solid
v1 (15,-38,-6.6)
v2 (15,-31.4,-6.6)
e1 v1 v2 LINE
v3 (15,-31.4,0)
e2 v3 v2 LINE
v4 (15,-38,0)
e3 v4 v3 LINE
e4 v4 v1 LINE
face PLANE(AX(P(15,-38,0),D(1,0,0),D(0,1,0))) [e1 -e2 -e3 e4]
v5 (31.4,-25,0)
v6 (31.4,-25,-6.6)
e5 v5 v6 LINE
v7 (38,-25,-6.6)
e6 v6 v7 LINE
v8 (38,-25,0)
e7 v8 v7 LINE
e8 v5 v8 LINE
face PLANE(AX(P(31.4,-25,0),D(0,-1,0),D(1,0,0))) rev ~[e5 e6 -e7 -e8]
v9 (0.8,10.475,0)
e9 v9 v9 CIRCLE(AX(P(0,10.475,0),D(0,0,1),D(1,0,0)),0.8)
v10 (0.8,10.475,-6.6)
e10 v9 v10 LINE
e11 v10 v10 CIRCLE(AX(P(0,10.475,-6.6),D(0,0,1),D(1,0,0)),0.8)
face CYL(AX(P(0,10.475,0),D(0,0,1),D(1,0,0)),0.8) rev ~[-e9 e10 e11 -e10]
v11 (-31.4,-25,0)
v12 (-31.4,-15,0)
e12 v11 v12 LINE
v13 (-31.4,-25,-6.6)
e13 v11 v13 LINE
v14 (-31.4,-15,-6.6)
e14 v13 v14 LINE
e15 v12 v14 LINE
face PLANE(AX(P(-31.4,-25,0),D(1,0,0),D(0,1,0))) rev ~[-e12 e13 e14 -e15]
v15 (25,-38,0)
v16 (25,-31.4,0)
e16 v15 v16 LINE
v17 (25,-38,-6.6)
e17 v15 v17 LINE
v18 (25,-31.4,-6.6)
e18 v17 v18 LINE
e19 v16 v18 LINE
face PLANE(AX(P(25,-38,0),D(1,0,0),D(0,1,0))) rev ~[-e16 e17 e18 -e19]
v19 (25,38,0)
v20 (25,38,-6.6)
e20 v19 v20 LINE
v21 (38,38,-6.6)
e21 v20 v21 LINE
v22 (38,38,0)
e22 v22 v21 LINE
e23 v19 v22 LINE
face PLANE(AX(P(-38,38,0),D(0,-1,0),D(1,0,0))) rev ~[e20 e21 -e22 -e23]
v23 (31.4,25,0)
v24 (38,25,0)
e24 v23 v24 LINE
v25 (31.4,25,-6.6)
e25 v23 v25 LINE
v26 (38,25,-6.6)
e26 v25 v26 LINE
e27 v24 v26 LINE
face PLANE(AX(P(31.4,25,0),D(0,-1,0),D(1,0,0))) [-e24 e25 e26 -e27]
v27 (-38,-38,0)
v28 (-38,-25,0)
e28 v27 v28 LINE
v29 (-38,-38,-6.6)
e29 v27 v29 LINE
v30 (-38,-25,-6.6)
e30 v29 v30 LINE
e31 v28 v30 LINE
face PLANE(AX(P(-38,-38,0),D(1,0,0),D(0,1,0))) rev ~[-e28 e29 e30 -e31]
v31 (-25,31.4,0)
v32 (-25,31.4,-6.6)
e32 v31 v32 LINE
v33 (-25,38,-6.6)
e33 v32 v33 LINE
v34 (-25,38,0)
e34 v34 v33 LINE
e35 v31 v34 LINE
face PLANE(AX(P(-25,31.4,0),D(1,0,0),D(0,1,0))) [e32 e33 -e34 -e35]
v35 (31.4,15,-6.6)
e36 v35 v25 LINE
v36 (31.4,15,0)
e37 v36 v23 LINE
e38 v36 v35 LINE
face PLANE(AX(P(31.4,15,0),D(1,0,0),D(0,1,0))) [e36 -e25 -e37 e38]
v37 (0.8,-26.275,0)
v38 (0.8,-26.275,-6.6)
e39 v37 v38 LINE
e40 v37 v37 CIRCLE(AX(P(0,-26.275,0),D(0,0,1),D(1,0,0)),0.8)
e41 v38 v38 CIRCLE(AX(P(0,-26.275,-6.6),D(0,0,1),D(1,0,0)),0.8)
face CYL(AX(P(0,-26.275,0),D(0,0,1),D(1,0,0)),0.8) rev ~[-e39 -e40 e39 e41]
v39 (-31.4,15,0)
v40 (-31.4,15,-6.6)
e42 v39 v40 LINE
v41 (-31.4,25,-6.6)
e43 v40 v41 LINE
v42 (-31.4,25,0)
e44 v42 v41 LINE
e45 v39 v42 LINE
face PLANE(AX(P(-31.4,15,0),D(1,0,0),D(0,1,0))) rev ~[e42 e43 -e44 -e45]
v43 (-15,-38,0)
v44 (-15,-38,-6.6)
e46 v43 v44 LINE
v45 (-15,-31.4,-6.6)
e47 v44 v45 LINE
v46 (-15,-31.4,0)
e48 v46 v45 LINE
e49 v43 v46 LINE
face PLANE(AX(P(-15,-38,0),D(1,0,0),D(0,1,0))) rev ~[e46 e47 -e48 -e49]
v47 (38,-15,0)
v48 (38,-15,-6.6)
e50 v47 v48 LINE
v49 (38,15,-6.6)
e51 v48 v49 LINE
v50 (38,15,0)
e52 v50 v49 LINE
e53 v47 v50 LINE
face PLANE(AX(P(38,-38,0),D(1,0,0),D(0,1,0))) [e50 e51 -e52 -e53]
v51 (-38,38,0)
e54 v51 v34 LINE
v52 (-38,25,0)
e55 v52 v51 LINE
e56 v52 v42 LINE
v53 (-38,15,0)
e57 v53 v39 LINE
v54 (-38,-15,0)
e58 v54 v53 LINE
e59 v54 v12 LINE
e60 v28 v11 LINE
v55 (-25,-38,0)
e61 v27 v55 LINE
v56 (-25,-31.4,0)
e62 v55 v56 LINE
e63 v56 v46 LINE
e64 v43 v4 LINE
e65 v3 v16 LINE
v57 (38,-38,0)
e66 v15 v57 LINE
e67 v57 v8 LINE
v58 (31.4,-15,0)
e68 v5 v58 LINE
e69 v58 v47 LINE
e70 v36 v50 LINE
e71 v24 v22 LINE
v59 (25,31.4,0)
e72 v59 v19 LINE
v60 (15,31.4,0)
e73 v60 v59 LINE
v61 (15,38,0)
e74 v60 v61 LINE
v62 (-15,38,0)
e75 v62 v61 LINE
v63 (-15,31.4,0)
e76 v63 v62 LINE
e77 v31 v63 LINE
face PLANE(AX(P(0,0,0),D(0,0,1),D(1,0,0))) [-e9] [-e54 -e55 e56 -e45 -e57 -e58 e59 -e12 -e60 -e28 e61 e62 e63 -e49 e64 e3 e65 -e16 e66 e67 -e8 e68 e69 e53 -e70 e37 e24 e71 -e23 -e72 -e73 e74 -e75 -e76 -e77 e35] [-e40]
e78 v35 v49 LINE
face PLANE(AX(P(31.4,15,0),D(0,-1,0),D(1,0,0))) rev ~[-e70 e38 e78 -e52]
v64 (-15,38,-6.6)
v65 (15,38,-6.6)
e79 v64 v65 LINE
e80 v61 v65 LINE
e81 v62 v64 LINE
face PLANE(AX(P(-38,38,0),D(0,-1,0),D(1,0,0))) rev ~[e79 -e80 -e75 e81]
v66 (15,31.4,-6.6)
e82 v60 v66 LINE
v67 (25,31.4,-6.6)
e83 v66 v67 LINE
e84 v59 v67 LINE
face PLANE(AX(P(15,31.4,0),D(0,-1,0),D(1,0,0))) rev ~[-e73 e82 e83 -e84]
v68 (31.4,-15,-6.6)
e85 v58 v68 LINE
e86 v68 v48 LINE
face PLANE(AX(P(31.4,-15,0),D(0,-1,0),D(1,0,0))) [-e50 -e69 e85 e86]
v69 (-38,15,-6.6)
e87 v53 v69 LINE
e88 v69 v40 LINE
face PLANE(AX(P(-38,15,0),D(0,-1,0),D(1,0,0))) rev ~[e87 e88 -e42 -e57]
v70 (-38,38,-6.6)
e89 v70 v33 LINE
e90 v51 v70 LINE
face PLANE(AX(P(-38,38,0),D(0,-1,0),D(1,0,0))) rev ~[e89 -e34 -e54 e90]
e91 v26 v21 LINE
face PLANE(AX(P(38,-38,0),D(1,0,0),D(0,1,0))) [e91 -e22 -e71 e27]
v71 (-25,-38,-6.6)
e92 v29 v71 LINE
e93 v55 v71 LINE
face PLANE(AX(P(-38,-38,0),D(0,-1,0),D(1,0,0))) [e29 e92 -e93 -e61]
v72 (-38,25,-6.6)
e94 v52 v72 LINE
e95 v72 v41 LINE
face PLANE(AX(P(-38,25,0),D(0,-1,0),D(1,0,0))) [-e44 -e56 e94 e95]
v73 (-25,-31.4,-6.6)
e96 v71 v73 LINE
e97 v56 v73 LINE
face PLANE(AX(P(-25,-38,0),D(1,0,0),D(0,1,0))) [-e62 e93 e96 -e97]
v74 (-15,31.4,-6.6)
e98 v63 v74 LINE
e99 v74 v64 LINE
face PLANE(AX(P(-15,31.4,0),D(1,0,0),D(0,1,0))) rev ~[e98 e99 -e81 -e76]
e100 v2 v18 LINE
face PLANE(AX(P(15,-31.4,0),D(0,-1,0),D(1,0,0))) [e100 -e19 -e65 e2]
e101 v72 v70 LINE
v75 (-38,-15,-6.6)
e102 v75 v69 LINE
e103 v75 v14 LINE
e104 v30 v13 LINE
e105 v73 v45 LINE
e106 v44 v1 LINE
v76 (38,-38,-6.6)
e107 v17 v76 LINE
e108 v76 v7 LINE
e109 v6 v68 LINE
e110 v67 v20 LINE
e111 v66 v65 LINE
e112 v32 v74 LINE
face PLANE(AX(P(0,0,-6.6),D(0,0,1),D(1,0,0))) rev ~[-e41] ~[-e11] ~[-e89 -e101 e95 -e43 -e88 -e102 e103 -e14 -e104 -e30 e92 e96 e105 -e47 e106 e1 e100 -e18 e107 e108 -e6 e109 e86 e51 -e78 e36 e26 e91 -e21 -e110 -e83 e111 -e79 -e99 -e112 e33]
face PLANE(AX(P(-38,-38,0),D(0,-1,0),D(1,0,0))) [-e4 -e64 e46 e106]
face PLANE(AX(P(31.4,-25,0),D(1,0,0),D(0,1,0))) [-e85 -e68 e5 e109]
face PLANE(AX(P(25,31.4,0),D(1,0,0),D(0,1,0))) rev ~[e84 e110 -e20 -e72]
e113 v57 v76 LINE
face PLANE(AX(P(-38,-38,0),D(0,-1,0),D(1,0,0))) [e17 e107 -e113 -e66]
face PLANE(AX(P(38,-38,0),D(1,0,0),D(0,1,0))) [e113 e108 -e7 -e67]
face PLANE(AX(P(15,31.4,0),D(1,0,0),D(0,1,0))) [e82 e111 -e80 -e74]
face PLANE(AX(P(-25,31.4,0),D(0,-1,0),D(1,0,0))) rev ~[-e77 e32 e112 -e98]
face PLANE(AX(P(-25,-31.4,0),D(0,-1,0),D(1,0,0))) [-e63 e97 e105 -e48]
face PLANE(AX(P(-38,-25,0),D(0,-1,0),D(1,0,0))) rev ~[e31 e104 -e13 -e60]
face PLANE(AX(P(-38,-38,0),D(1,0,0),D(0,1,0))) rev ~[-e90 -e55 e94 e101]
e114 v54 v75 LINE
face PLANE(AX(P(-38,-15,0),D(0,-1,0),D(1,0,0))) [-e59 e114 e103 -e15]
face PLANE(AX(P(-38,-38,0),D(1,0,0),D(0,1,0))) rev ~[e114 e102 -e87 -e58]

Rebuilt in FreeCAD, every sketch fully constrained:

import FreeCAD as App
import Part
import Sketcher
from FreeCAD import Vector
Q = App.Units.Quantity

doc = App.newDocument("Part")
body = doc.addObject("PartDesign::Body", "Body")

# Sketch on XY plane
sketch1 = body.newObject("Sketcher::SketchObject", "Sketch")
sketch1.AttachmentSupport = (doc.getObject("XY_Plane"), [""])
sketch1.MapMode = "FlatFace"
sketch1.addGeometry(Part.LineSegment(Vector(-38, 38, 0), Vector(-38, -38, 0)), False)
sketch1.addGeometry(Part.LineSegment(Vector(-38, -38, 0), Vector(38, -38, 0)), False)
sketch1.addGeometry(Part.LineSegment(Vector(38, -38, 0), Vector(38, 38, 0)), False)
sketch1.addGeometry(Part.LineSegment(Vector(38, 38, 0), Vector(-38, 38, 0)), False)
sketch1.addConstraint(Sketcher.Constraint("Coincident", 0, 2, 1, 1))
sketch1.addConstraint(Sketcher.Constraint("Coincident", 1, 2, 2, 1))
sketch1.addConstraint(Sketcher.Constraint("Coincident", 2, 2, 3, 1))
sketch1.addConstraint(Sketcher.Constraint("Coincident", 3, 2, 0, 1))
sketch1.addConstraint(Sketcher.Constraint("Vertical", 0))
sketch1.addConstraint(Sketcher.Constraint("Horizontal", 1))
sketch1.addConstraint(Sketcher.Constraint("Vertical", 2))
sketch1.addConstraint(Sketcher.Constraint("Horizontal", 3))
sketch1.addConstraint(Sketcher.Constraint("Symmetric", 0, 2, 2, 2, -1, 1))
sketch1.addConstraint(Sketcher.Constraint("Equal", 3, 0))
sketch1.addConstraint(Sketcher.Constraint("DistanceX", 1, 1, 1, 2, Q("76 mm")))
pad1 = body.newObject("PartDesign::Pad", "Pad")
pad1.Profile = sketch1
pad1.Length = 6.6
pad1.Reversed = True

# Sketch on XY plane
sketch2 = body.newObject("Sketcher::SketchObject", "Sketch001")
sketch2.AttachmentSupport = (doc.getObject("XY_Plane"), [""])
sketch2.MapMode = "FlatFace"
sketch2.addGeometry(Part.LineSegment(Vector(15, 38, 0), Vector(15, 31, 0)), False)
sketch2.addGeometry(Part.LineSegment(Vector(15, 31, 0), Vector(25, 31, 0)), False)
sketch2.addGeometry(Part.LineSegment(Vector(25, 31, 0), Vector(25, 38, 0)), False)
sketch2.addGeometry(Part.LineSegment(Vector(25, 38, 0), Vector(15, 38, 0)), False)
sketch2.addGeometry(Part.LineSegment(Vector(-25, 38, 0), Vector(-25, 31, 0)), False)
sketch2.addGeometry(Part.LineSegment(Vector(-25, 31, 0), Vector(-15, 31, 0)), False)
sketch2.addGeometry(Part.LineSegment(Vector(-15, 31, 0), Vector(-15, 38, 0)), False)
sketch2.addGeometry(Part.LineSegment(Vector(-15, 38, 0), Vector(-25, 38, 0)), False)
sketch2.addGeometry(Part.LineSegment(Vector(-38, -15, 0), Vector(-38, -25, 0)), False)
sketch2.addGeometry(Part.LineSegment(Vector(-38, -25, 0), Vector(-31, -25, 0)), False)
sketch2.addGeometry(Part.LineSegment(Vector(-31, -25, 0), Vector(-31, -15, 0)), False)
sketch2.addGeometry(Part.LineSegment(Vector(-31, -15, 0), Vector(-38, -15, 0)), False)
sketch2.addGeometry(Part.LineSegment(Vector(-38, 25, 0), Vector(-38, 15, 0)), False)
sketch2.addGeometry(Part.LineSegment(Vector(-38, 15, 0), Vector(-31, 15, 0)), False)
sketch2.addGeometry(Part.LineSegment(Vector(-31, 15, 0), Vector(-31, 25, 0)), False)
sketch2.addGeometry(Part.LineSegment(Vector(-31, 25, 0), Vector(-38, 25, 0)), False)
sketch2.addGeometry(Part.LineSegment(Vector(15, -31, 0), Vector(15, -38, 0)), False)
sketch2.addGeometry(Part.LineSegment(Vector(15, -38, 0), Vector(25, -38, 0)), False)
sketch2.addGeometry(Part.LineSegment(Vector(25, -38, 0), Vector(25, -31, 0)), False)
sketch2.addGeometry(Part.LineSegment(Vector(25, -31, 0), Vector(15, -31, 0)), False)
sketch2.addGeometry(Part.LineSegment(Vector(-25, -31, 0), Vector(-25, -38, 0)), False)
sketch2.addGeometry(Part.LineSegment(Vector(-25, -38, 0), Vector(-15, -38, 0)), False)
sketch2.addGeometry(Part.LineSegment(Vector(-15, -38, 0), Vector(-15, -31, 0)), False)
sketch2.addGeometry(Part.LineSegment(Vector(-15, -31, 0), Vector(-25, -31, 0)), False)
sketch2.addGeometry(Part.LineSegment(Vector(31, 25, 0), Vector(31, 15, 0)), False)
sketch2.addGeometry(Part.LineSegment(Vector(31, 15, 0), Vector(38, 15, 0)), False)
sketch2.addGeometry(Part.LineSegment(Vector(38, 15, 0), Vector(38, 25, 0)), False)
sketch2.addGeometry(Part.LineSegment(Vector(38, 25, 0), Vector(31, 25, 0)), False)
sketch2.addGeometry(Part.LineSegment(Vector(31, -15, 0), Vector(31, -25, 0)), False)
sketch2.addGeometry(Part.LineSegment(Vector(31, -25, 0), Vector(38, -25, 0)), False)
sketch2.addGeometry(Part.LineSegment(Vector(38, -25, 0), Vector(38, -15, 0)), False)
sketch2.addGeometry(Part.LineSegment(Vector(38, -15, 0), Vector(31, -15, 0)), False)
sketch2.addConstraint(Sketcher.Constraint("Coincident", 0, 2, 1, 1))
sketch2.addConstraint(Sketcher.Constraint("Coincident", 1, 2, 2, 1))
sketch2.addConstraint(Sketcher.Constraint("Coincident", 2, 2, 3, 1))
sketch2.addConstraint(Sketcher.Constraint("Coincident", 3, 2, 0, 1))
sketch2.addConstraint(Sketcher.Constraint("Coincident", 4, 2, 5, 1))
sketch2.addConstraint(Sketcher.Constraint("Coincident", 5, 2, 6, 1))
sketch2.addConstraint(Sketcher.Constraint("Coincident", 6, 2, 7, 1))
sketch2.addConstraint(Sketcher.Constraint("Coincident", 7, 2, 4, 1))
sketch2.addConstraint(Sketcher.Constraint("Coincident", 8, 2, 9, 1))
sketch2.addConstraint(Sketcher.Constraint("Coincident", 9, 2, 10, 1))
sketch2.addConstraint(Sketcher.Constraint("Coincident", 10, 2, 11, 1))
sketch2.addConstraint(Sketcher.Constraint("Coincident", 11, 2, 8, 1))
sketch2.addConstraint(Sketcher.Constraint("Coincident", 12, 2, 13, 1))
sketch2.addConstraint(Sketcher.Constraint("Coincident", 13, 2, 14, 1))
sketch2.addConstraint(Sketcher.Constraint("Coincident", 14, 2, 15, 1))
sketch2.addConstraint(Sketcher.Constraint("Coincident", 15, 2, 12, 1))
sketch2.addConstraint(Sketcher.Constraint("Coincident", 16, 2, 17, 1))
sketch2.addConstraint(Sketcher.Constraint("Coincident", 17, 2, 18, 1))
sketch2.addConstraint(Sketcher.Constraint("Coincident", 18, 2, 19, 1))
sketch2.addConstraint(Sketcher.Constraint("Coincident", 19, 2, 16, 1))
sketch2.addConstraint(Sketcher.Constraint("Coincident", 20, 2, 21, 1))
sketch2.addConstraint(Sketcher.Constraint("Coincident", 21, 2, 22, 1))
sketch2.addConstraint(Sketcher.Constraint("Coincident", 22, 2, 23, 1))
sketch2.addConstraint(Sketcher.Constraint("Coincident", 23, 2, 20, 1))
sketch2.addConstraint(Sketcher.Constraint("Coincident", 24, 2, 25, 1))
sketch2.addConstraint(Sketcher.Constraint("Coincident", 25, 2, 26, 1))
sketch2.addConstraint(Sketcher.Constraint("Coincident", 26, 2, 27, 1))
sketch2.addConstraint(Sketcher.Constraint("Coincident", 27, 2, 24, 1))
sketch2.addConstraint(Sketcher.Constraint("Coincident", 28, 2, 29, 1))
sketch2.addConstraint(Sketcher.Constraint("Coincident", 29, 2, 30, 1))
sketch2.addConstraint(Sketcher.Constraint("Coincident", 30, 2, 31, 1))
sketch2.addConstraint(Sketcher.Constraint("Coincident", 31, 2, 28, 1))
sketch2.addConstraint(Sketcher.Constraint("Vertical", 0))
sketch2.addConstraint(Sketcher.Constraint("Horizontal", 1))
sketch2.addConstraint(Sketcher.Constraint("Vertical", 2))
sketch2.addConstraint(Sketcher.Constraint("Horizontal", 3))
sketch2.addConstraint(Sketcher.Constraint("Vertical", 4))
sketch2.addConstraint(Sketcher.Constraint("Horizontal", 5))
sketch2.addConstraint(Sketcher.Constraint("Vertical", 6))
sketch2.addConstraint(Sketcher.Constraint("Horizontal", 7))
sketch2.addConstraint(Sketcher.Constraint("Vertical", 8))
sketch2.addConstraint(Sketcher.Constraint("Horizontal", 9))
sketch2.addConstraint(Sketcher.Constraint("Vertical", 10))
sketch2.addConstraint(Sketcher.Constraint("Horizontal", 11))
sketch2.addConstraint(Sketcher.Constraint("Vertical", 12))
sketch2.addConstraint(Sketcher.Constraint("Horizontal", 13))
sketch2.addConstraint(Sketcher.Constraint("Vertical", 14))
sketch2.addConstraint(Sketcher.Constraint("Horizontal", 15))
sketch2.addConstraint(Sketcher.Constraint("Vertical", 16))
sketch2.addConstraint(Sketcher.Constraint("Horizontal", 17))
sketch2.addConstraint(Sketcher.Constraint("Vertical", 18))
sketch2.addConstraint(Sketcher.Constraint("Horizontal", 19))
sketch2.addConstraint(Sketcher.Constraint("Vertical", 20))
sketch2.addConstraint(Sketcher.Constraint("Horizontal", 21))
sketch2.addConstraint(Sketcher.Constraint("Vertical", 22))
sketch2.addConstraint(Sketcher.Constraint("Horizontal", 23))
sketch2.addConstraint(Sketcher.Constraint("Vertical", 24))
sketch2.addConstraint(Sketcher.Constraint("Horizontal", 25))
sketch2.addConstraint(Sketcher.Constraint("Vertical", 26))
sketch2.addConstraint(Sketcher.Constraint("Horizontal", 27))
sketch2.addConstraint(Sketcher.Constraint("Vertical", 28))
sketch2.addConstraint(Sketcher.Constraint("Horizontal", 29))
sketch2.addConstraint(Sketcher.Constraint("Vertical", 30))
sketch2.addConstraint(Sketcher.Constraint("Horizontal", 31))
sketch2.addConstraint(Sketcher.Constraint("Symmetric", 6, 2, 16, 2, -1, 1))
sketch2.addConstraint(Sketcher.Constraint("Symmetric", 4, 2, 18, 2, -1, 1))
sketch2.addConstraint(Sketcher.Constraint("Symmetric", 2, 2, 20, 2, -1, 1))
sketch2.addConstraint(Sketcher.Constraint("Symmetric", 0, 2, 22, 2, -1, 1))
sketch2.addConstraint(Sketcher.Constraint("Symmetric", 10, 2, 24, 2, -1, 1))
sketch2.addConstraint(Sketcher.Constraint("Symmetric", 8, 2, 26, 2, -1, 1))
sketch2.addConstraint(Sketcher.Constraint("Symmetric", 14, 2, 28, 2, -1, 1))
sketch2.addConstraint(Sketcher.Constraint("Symmetric", 12, 2, 30, 2, -1, 1))
sketch2.addConstraint(Sketcher.Constraint("Symmetric", 1, 2, 4, 2, -2))
sketch2.addConstraint(Sketcher.Constraint("Symmetric", 3, 2, 6, 2, -2))
sketch2.addConstraint(Sketcher.Constraint("Symmetric", 13, 2, 24, 2, -2))
sketch2.addConstraint(Sketcher.Constraint("Symmetric", 15, 2, 26, 2, -2))
sketch2.addConstraint(Sketcher.Constraint("Equal", 31, 0))
sketch2.addConstraint(Sketcher.Constraint("Equal", 23, 8))
sketch2.addConstraint(Sketcher.Constraint("DistanceX", 1, 1, 1, 2, Q("10 mm")))
sketch2.addConstraint(Sketcher.Constraint("DistanceX", 9, 1, 9, 2, Q("6.6 mm")))
sketch2.addConstraint(Sketcher.Constraint("DistanceX", -1, 1, 0, 2, Q("15 mm")))
sketch2.addConstraint(Sketcher.Constraint("DistanceY", -1, 1, 2, 2, Q("38 mm")))
sketch2.addConstraint(Sketcher.Constraint("DistanceX", 8, 2, -1, 1, Q("38 mm")))
sketch2.addConstraint(Sketcher.Constraint("DistanceY", 8, 2, -1, 1, Q("25 mm")))
pocket1 = body.newObject("PartDesign::Pocket", "Pocket")
pocket1.Profile = sketch2
pocket1.Type = "ThroughAll"

# Sketch on XY plane
sketch3 = body.newObject("Sketcher::SketchObject", "Sketch002")
sketch3.AttachmentSupport = (doc.getObject("XY_Plane"), [""])
sketch3.MapMode = "FlatFace"
sketch3.addGeometry(Part.Circle(Vector(0, 10.5, 0), Vector(0, 0, 1), 0.8), False)
sketch3.addGeometry(Part.Circle(Vector(0, -26.3, 0), Vector(0, 0, 1), 0.8), False)
sketch3.addConstraint(Sketcher.Constraint("Equal", 0, 1))
sketch3.addConstraint(Sketcher.Constraint("PointOnObject", 0, 3, -2))
sketch3.addConstraint(Sketcher.Constraint("PointOnObject", 1, 3, -2))
sketch3.addConstraint(Sketcher.Constraint("Diameter", 0, Q("1.6 mm")))
sketch3.addConstraint(Sketcher.Constraint("DistanceY", 1, 3, 0, 3, Q("36.75 mm")))
sketch3.addConstraint(Sketcher.Constraint("DistanceY", -1, 1, 0, 3, Q("10.475 mm")))
pocket2 = body.newObject("PartDesign::Pocket", "Pocket001")
pocket2.Profile = sketch3
pocket2.Type = "ThroughAll"

doc.recompute()
